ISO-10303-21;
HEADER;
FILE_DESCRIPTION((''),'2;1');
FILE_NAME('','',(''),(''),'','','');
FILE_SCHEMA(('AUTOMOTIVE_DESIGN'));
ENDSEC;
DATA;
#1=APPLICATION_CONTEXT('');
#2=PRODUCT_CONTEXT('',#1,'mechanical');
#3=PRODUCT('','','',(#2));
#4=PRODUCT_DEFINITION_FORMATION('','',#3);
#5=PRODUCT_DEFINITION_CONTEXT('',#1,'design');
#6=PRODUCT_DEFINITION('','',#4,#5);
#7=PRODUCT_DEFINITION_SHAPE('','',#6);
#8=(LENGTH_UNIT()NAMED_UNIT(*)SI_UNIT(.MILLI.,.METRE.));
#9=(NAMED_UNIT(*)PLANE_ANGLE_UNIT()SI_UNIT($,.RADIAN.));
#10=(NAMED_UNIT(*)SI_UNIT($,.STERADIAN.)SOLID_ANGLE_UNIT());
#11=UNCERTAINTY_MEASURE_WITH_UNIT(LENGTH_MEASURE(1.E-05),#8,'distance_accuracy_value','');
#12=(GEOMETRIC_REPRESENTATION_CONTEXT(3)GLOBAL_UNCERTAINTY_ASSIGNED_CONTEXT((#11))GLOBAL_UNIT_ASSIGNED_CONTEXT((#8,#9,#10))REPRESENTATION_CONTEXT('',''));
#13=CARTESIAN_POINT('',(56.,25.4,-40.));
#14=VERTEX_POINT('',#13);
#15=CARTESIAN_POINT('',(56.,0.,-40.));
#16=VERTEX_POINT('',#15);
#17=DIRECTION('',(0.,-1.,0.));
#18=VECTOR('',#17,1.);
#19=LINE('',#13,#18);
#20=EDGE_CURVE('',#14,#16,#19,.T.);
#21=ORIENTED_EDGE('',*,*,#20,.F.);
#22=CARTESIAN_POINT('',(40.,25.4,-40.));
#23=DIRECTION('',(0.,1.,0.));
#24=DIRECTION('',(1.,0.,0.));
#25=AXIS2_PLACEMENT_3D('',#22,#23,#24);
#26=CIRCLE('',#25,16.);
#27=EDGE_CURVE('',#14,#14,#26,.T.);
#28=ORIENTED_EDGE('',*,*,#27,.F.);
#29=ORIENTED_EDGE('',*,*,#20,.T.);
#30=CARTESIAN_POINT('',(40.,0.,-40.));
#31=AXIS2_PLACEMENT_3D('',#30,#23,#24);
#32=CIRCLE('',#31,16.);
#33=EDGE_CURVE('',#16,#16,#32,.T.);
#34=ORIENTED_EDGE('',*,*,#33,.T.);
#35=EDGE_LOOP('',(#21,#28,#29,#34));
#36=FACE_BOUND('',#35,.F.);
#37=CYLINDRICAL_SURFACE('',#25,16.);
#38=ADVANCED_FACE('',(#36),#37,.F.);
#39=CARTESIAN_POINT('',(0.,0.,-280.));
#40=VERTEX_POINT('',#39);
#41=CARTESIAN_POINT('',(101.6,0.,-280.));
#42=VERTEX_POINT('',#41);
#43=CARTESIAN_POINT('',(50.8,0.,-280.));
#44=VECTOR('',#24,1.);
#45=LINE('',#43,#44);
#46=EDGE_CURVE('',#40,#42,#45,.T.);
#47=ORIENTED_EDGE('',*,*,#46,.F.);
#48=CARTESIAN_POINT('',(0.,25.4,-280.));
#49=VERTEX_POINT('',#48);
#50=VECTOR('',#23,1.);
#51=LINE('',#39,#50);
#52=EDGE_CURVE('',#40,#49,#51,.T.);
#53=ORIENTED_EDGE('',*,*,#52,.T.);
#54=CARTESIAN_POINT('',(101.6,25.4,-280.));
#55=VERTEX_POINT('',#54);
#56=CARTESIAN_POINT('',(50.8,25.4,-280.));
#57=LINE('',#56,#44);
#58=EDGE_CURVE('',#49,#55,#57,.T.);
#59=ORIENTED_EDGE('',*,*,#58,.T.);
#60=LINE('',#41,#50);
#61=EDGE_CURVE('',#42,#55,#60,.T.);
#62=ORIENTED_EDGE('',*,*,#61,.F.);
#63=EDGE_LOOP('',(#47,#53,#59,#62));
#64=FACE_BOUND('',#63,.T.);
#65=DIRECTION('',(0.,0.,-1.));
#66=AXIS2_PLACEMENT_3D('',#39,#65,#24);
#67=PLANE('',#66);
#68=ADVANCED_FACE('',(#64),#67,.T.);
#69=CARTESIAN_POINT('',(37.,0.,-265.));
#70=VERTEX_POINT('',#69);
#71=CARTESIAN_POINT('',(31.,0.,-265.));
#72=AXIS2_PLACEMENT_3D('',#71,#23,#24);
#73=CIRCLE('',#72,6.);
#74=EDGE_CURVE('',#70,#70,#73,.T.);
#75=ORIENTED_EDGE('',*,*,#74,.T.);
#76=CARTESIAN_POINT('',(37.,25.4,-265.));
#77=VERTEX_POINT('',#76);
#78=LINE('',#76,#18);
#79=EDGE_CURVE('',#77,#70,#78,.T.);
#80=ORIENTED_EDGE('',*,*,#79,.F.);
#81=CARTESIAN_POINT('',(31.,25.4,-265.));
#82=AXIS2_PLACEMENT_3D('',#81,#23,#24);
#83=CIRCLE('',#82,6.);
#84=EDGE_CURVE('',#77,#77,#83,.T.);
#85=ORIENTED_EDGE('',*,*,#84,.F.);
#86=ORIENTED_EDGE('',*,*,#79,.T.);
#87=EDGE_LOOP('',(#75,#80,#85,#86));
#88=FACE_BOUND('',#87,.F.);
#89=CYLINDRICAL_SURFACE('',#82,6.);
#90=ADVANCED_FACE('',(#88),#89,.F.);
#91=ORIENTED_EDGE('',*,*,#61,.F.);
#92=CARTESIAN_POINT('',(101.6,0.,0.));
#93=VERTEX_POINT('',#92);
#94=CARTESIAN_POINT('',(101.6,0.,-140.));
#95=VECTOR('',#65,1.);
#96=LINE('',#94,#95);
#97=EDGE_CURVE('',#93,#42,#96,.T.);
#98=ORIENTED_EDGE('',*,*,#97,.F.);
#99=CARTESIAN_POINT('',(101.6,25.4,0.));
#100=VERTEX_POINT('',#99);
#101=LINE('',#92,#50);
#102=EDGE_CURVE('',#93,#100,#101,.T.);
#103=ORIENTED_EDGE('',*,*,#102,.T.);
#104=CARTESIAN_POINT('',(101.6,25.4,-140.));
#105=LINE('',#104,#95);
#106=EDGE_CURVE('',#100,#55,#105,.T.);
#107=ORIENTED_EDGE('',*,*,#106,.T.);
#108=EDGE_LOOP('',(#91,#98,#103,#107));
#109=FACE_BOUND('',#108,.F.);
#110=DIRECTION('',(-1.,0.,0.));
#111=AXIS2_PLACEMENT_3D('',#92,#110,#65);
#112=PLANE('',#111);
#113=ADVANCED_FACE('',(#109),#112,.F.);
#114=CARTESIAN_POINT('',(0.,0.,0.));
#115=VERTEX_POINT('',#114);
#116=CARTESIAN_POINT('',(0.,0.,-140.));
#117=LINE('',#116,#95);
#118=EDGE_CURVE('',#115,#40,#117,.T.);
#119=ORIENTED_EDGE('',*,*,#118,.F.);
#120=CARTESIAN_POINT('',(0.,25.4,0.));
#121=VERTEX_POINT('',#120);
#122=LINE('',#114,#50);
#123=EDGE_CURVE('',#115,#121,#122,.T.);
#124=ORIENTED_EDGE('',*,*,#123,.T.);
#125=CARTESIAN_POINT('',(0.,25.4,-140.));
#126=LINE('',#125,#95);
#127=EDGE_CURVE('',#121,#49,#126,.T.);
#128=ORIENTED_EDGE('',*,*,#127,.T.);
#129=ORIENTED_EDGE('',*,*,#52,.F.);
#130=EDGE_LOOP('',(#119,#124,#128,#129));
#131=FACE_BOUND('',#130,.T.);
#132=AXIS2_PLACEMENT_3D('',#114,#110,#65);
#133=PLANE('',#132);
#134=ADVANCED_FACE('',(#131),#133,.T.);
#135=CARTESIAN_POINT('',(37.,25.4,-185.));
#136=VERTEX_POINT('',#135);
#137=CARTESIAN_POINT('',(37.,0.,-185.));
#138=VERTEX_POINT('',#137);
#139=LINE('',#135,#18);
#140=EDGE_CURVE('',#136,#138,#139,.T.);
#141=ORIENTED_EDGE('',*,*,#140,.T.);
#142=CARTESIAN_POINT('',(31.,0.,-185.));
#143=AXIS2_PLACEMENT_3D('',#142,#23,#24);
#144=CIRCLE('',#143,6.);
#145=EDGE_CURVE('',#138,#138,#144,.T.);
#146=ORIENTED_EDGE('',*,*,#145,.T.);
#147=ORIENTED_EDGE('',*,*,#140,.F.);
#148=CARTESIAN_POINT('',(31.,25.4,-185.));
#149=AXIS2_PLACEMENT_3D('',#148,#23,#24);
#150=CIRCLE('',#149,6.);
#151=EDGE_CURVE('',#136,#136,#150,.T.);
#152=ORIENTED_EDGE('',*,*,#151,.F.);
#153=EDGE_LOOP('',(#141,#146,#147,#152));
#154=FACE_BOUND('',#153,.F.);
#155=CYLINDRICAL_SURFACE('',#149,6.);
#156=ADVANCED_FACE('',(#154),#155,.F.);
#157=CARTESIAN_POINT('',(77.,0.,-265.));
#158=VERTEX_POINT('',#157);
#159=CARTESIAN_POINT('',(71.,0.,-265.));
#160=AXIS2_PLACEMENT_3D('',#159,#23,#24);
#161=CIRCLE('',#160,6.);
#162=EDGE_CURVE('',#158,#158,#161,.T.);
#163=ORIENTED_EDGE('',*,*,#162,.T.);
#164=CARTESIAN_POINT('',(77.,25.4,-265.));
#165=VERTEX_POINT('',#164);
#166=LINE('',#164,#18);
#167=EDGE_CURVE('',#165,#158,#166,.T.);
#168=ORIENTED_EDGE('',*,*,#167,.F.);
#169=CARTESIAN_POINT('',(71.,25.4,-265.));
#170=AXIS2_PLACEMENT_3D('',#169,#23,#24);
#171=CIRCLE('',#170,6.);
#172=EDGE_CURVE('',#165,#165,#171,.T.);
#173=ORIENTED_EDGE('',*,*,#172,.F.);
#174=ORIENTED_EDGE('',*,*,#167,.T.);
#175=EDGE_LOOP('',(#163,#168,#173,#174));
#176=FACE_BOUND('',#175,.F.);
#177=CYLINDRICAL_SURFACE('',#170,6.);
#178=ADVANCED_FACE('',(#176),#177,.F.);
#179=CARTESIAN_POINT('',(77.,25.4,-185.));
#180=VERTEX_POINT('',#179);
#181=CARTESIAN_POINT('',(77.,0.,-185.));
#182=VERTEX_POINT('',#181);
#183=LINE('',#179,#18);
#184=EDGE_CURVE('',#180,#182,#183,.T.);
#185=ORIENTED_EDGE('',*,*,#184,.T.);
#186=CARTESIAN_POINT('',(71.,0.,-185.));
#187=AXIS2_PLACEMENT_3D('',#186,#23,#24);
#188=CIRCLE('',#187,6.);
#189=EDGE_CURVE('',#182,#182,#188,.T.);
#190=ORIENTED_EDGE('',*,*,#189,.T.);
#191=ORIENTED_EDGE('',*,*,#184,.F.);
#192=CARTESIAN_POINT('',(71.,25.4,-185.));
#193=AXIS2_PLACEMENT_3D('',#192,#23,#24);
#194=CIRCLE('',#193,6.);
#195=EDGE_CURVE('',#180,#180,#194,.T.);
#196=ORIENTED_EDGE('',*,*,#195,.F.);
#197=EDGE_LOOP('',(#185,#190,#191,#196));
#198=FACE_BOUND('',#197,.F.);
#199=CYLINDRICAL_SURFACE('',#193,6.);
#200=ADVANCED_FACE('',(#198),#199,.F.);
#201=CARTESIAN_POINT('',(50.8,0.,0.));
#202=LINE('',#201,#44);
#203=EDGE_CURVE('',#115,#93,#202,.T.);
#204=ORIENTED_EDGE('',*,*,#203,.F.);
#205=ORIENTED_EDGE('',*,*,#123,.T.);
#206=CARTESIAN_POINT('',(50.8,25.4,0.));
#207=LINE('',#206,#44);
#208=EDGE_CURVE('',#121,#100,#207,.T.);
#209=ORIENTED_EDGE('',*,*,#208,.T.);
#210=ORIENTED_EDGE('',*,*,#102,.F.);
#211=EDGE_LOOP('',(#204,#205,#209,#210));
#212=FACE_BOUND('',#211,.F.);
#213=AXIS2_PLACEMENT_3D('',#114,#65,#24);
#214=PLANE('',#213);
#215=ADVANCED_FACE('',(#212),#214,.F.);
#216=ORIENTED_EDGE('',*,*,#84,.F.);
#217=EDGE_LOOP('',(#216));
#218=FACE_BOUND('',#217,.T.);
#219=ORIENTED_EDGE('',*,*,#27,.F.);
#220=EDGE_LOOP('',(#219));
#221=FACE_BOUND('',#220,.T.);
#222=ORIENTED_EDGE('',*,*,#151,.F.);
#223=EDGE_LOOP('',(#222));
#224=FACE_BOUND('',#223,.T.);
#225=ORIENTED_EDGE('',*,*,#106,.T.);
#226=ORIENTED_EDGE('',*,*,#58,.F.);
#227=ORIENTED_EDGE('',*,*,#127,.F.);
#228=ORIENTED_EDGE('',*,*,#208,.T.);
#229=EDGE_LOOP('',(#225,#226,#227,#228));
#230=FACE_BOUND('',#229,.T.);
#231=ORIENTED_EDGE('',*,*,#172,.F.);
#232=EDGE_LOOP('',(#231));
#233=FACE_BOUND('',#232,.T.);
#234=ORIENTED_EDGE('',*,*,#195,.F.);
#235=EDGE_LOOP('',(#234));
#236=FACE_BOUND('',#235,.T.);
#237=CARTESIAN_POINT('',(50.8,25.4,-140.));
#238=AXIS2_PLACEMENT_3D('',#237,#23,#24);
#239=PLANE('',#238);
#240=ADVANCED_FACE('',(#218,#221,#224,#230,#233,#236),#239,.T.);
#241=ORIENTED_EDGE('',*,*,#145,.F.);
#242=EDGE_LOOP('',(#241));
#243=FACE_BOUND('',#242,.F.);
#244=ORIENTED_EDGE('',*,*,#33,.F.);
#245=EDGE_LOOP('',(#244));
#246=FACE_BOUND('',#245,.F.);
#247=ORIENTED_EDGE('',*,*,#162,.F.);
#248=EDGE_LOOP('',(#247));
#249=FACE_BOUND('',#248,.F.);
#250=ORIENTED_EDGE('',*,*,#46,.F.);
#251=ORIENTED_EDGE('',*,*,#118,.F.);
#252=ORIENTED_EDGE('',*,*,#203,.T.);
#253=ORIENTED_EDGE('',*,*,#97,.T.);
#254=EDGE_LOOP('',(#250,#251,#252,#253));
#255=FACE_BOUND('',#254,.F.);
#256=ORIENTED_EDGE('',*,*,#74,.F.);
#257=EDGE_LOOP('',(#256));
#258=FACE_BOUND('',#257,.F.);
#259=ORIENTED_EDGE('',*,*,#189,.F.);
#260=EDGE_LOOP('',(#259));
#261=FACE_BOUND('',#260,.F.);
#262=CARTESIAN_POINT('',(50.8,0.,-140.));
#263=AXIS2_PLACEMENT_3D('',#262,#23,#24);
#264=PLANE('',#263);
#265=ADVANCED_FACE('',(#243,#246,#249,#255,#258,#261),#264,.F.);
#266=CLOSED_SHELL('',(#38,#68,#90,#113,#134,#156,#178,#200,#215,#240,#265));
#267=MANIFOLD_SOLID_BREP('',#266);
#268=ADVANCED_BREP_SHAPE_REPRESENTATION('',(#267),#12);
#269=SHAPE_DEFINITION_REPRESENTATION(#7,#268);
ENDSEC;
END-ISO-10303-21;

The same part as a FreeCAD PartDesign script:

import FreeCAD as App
import Part
import Sketcher

V = App.Vector
Q = App.Units.Quantity

doc = App.newDocument("Part")
body = doc.addObject("PartDesign::Body", "Body")

sketch1 = doc.addObject("Sketcher::SketchObject", "Sketch")
body.addObject(sketch1)
sketch1.AttachmentSupport = (doc.XZ_Plane, [""])
sketch1.MapMode = "FlatFace"
sketch1.addGeometry(Part.LineSegment(V(0, -280, 0), V(0, 0, 0)), False)
sketch1.addGeometry(Part.LineSegment(V(0, 0, 0), V(102, 0, 0)), False)
sketch1.addGeometry(Part.LineSegment(V(102, 0, 0), V(102, -280, 0)), False)
sketch1.addGeometry(Part.LineSegment(V(102, -280, 0), V(0, -280, 0)), False)
sketch1.addConstraint(Sketcher.Constraint("Coincident", 0, 2, 1, 1))
sketch1.addConstraint(Sketcher.Constraint("Coincident", 1, 2, 2, 1))
sketch1.addConstraint(Sketcher.Constraint("Coincident", 2, 2, 3, 1))
sketch1.addConstraint(Sketcher.Constraint("Coincident", 3, 2, 0, 1))
sketch1.addConstraint(Sketcher.Constraint("Vertical", 0))
sketch1.addConstraint(Sketcher.Constraint("Horizontal", 1))
sketch1.addConstraint(Sketcher.Constraint("Vertical", 2))
sketch1.addConstraint(Sketcher.Constraint("Horizontal", 3))
sketch1.addConstraint(Sketcher.Constraint("Coincident", 0, 2, -1, 1))
sketch1.addConstraint(Sketcher.Constraint("DistanceY", 0, 1, 0, 2, Q("280 mm")))
sketch1.addConstraint(Sketcher.Constraint("DistanceX", 1, 1, 1, 2, Q("101.6 mm")))
pad1 = doc.addObject("PartDesign::Pad", "Pad")
body.addObject(pad1)
pad1.Profile = sketch1
pad1.Length = 25.4
pad1.Reversed = True

sketch2 = doc.addObject("Sketcher::SketchObject", "Sketch001")
body.addObject(sketch2)
sketch2.AttachmentSupport = (doc.XZ_Plane, [""])
sketch2.MapMode = "FlatFace"
sketch2.AttachmentOffset = App.Placement(V(0, 0, -25.4), App.Rotation())
sketch2.addGeometry(Part.Circle(V(71, -265, 0), V(0, 0, 1), 6), False)
sketch2.addGeometry(Part.Circle(V(31, -265, 0), V(0, 0, 1), 6), False)
sketch2.addGeometry(Part.Circle(V(31, -185, 0), V(0, 0, 1), 6), False)
sketch2.addGeometry(Part.Circle(V(71, -185, 0), V(0, 0, 1), 6), False)
sketch2.addConstraint(Sketcher.Constraint("Equal", 0, 1))
sketch2.addConstraint(Sketcher.Constraint("Equal", 1, 2))
sketch2.addConstraint(Sketcher.Constraint("Equal", 2, 3))
sketch2.addConstraint(Sketcher.Constraint("Horizontal", 0, 3, 1, 3))
sketch2.addConstraint(Sketcher.Constraint("Horizontal", 2, 3, 3, 3))
sketch2.addConstraint(Sketcher.Constraint("Vertical", 1, 3, 2, 3))
sketch2.addConstraint(Sketcher.Constraint("Vertical", 0, 3, 3, 3))
sketch2.addConstraint(Sketcher.Constraint("Diameter", 0, Q("12 mm")))
sketch2.addConstraint(Sketcher.Constraint("DistanceX", -1, 1, 0, 3, Q("71 mm")))
sketch2.addConstraint(Sketcher.Constraint("DistanceY", 0, 3, -1, 1, Q("265 mm")))
sketch2.addConstraint(Sketcher.Constraint("DistanceX", -1, 1, 1, 3, Q("31 mm")))
sketch2.addConstraint(Sketcher.Constraint("DistanceY", 2, 3, -1, 1, Q("185 mm")))
pocket1 = doc.addObject("PartDesign::Pocket", "Pocket")
body.addObject(pocket1)
pocket1.Profile = sketch2
pocket1.Length = 25.4
pocket1.Reversed = True

sketch3 = doc.addObject("Sketcher::SketchObject", "Sketch002")
body.addObject(sketch3)
sketch3.AttachmentSupport = (doc.XZ_Plane, [""])
sketch3.MapMode = "FlatFace"
sketch3.AttachmentOffset = App.Placement(V(0, 0, -25.4), App.Rotation())
sketch3.addGeometry(Part.Circle(V(40, -40, 0), V(0, 0, 1), 16), False)
sketch3.addConstraint(Sketcher.Constraint("Diameter", 0, Q("32 mm")))
sketch3.addConstraint(Sketcher.Constraint("DistanceX", -1, 1, 0, 3, Q("40 mm")))
sketch3.addConstraint(Sketcher.Constraint("DistanceY", 0, 3, -1, 1, Q("40 mm")))
pocket2 = doc.addObject("PartDesign::Pocket", "Pocket001")
body.addObject(pocket2)
pocket2.Profile = sketch3
pocket2.Length = 25.4
pocket2.Reversed = True

doc.recompute()
